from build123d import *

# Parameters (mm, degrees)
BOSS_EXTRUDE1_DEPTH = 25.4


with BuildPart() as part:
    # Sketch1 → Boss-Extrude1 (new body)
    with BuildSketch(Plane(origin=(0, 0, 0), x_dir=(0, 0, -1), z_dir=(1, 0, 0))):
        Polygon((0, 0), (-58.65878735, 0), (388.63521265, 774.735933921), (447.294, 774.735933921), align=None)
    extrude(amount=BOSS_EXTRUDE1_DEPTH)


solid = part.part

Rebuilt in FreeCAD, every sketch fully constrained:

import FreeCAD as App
import Part
import Sketcher

V = App.Vector
Q = App.Units.Quantity


def add_polygon(sketch, points):
    """Adds a closed chain of lines whose ends are joined by coincident constraints."""
    first, n = sketch.GeometryCount, len(points)
    for a, b in zip(points, points[1:] + points[:1]):
        sketch.addGeometry(Part.LineSegment(App.Vector(*a, 0), App.Vector(*b, 0)), False)
    for i in range(n):
        sketch.addConstraint(Sketcher.Constraint("Coincident", first + i, 2, first + (i + 1) % n, 1))

doc = App.newDocument("Part")
body = doc.addObject("PartDesign::Body", "Body")

# Sketch on YZ plane
sketch1 = body.newObject("Sketcher::SketchObject", "Sketch")
sketch1.AttachmentSupport = (doc.getObject("YZ_Plane"), [""])
sketch1.MapMode = "FlatFace"
add_polygon(sketch1, [(0, 59), (0, 0), (775, -447), (775, -389)])  # lines 0-3
sketch1.addConstraint([
    Sketcher.Constraint("Vertical", 0),
    Sketcher.Constraint("Vertical", 2),
    Sketcher.Constraint("Coincident", 0, 2, -1, 1),
    Sketcher.Constraint("Parallel", 1, 3),
    Sketcher.Constraint("Angle", 1, Q("-30 deg")),
    Sketcher.Constraint("Distance", 1, Q("35.22 in")),
    Sketcher.Constraint("DistanceY", 0, 2, 0, 1, 58.658787),
])
pad1 = body.newObject("PartDesign::Pad", "Pad")
pad1.Profile = sketch1
pad1.Length = Q("1 in")

doc.recompute()
